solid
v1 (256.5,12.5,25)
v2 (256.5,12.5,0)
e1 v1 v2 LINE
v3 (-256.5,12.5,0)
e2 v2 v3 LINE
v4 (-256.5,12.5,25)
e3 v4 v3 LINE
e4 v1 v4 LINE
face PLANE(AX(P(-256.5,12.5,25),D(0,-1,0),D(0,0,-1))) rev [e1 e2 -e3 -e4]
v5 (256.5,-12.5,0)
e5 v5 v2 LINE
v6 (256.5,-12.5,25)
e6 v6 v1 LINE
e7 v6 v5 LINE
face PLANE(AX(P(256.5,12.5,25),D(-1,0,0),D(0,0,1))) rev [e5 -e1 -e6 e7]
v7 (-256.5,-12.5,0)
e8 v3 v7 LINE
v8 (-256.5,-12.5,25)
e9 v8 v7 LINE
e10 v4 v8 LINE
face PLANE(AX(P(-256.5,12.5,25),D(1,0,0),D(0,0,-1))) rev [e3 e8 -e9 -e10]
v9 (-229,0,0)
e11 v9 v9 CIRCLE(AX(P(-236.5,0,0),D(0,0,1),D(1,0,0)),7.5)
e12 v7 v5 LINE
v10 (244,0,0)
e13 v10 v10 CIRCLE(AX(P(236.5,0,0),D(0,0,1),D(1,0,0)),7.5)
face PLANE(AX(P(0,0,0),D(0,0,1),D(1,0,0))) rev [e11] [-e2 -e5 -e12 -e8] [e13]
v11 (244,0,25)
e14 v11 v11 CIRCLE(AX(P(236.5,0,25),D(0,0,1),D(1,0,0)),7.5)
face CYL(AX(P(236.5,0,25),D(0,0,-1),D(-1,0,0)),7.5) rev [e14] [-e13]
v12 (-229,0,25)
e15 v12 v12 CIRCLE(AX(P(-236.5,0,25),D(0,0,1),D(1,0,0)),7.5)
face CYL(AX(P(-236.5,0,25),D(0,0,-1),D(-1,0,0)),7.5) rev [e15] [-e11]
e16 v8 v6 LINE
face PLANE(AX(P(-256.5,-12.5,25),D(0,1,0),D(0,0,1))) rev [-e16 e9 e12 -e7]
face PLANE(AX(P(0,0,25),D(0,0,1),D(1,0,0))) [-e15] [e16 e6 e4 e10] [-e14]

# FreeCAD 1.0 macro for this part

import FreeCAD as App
import Part
import Sketcher
from FreeCAD import Vector
Q = App.Units.Quantity


def add_polygon(sketch, points):
    """Adds a closed chain of lines whose ends are joined by coincident constraints."""
    first, n = sketch.GeometryCount, len(points)
    for a, b in zip(points, points[1:] + points[:1]):
        sketch.addGeometry(Part.LineSegment(App.Vector(*a, 0), App.Vector(*b, 0)), False)
    for i in range(n):
        sketch.addConstraint(Sketcher.Constraint("Coincident", first + i, 2, first + (i + 1) % n, 1))

doc = App.newDocument("Part")
body = doc.addObject("PartDesign::Body", "Body")

sketch1 = doc.addObject("Sketcher::SketchObject", "Sketch")
body.addObject(sketch1)
sketch1.AttachmentSupport = (doc.XY_Plane, [""])
sketch1.MapMode = "FlatFace"
add_polygon(sketch1, [(-256, 12), (-256, -12), (256, -12), (256, 12)])
sketch1.addGeometry(Part.Circle(Vector(-236, 0, 0), Vector(0, 0, 1), 8), False)
sketch1.addGeometry(Part.Circle(Vector(236, 0, 0), Vector(0, 0, 1), 8), False)
sketch1.addConstraint([
    Sketcher.Constraint("Vertical", 0),
    Sketcher.Constraint("Horizontal", 1),
    Sketcher.Constraint("Vertical", 2),
    Sketcher.Constraint("Horizontal", 3),
    Sketcher.Constraint("Equal", 4, 5),
    Sketcher.Constraint("Symmetric", 4, 3, 5, 3, -1, 1),
    Sketcher.Constraint("Symmetric", 0, 2, 2, 2, -1, 1),
    Sketcher.Constraint("PointOnObject", 4, 3, -1),
    Sketcher.Constraint("Diameter", 4, Q("15 mm")),
    Sketcher.Constraint("DistanceX", 1, 1, 1, 2, Q("513 mm")),
    Sketcher.Constraint("DistanceY", 0, 2, 0, 1, Q("25 mm")),
    Sketcher.Constraint("DistanceX", 4, 3, 5, 3, Q("473 mm")),
])
pad1 = doc.addObject("PartDesign::Pad", "Pad")
body.addObject(pad1)
pad1.Profile = sketch1
pad1.Length = 25

doc.recompute()
